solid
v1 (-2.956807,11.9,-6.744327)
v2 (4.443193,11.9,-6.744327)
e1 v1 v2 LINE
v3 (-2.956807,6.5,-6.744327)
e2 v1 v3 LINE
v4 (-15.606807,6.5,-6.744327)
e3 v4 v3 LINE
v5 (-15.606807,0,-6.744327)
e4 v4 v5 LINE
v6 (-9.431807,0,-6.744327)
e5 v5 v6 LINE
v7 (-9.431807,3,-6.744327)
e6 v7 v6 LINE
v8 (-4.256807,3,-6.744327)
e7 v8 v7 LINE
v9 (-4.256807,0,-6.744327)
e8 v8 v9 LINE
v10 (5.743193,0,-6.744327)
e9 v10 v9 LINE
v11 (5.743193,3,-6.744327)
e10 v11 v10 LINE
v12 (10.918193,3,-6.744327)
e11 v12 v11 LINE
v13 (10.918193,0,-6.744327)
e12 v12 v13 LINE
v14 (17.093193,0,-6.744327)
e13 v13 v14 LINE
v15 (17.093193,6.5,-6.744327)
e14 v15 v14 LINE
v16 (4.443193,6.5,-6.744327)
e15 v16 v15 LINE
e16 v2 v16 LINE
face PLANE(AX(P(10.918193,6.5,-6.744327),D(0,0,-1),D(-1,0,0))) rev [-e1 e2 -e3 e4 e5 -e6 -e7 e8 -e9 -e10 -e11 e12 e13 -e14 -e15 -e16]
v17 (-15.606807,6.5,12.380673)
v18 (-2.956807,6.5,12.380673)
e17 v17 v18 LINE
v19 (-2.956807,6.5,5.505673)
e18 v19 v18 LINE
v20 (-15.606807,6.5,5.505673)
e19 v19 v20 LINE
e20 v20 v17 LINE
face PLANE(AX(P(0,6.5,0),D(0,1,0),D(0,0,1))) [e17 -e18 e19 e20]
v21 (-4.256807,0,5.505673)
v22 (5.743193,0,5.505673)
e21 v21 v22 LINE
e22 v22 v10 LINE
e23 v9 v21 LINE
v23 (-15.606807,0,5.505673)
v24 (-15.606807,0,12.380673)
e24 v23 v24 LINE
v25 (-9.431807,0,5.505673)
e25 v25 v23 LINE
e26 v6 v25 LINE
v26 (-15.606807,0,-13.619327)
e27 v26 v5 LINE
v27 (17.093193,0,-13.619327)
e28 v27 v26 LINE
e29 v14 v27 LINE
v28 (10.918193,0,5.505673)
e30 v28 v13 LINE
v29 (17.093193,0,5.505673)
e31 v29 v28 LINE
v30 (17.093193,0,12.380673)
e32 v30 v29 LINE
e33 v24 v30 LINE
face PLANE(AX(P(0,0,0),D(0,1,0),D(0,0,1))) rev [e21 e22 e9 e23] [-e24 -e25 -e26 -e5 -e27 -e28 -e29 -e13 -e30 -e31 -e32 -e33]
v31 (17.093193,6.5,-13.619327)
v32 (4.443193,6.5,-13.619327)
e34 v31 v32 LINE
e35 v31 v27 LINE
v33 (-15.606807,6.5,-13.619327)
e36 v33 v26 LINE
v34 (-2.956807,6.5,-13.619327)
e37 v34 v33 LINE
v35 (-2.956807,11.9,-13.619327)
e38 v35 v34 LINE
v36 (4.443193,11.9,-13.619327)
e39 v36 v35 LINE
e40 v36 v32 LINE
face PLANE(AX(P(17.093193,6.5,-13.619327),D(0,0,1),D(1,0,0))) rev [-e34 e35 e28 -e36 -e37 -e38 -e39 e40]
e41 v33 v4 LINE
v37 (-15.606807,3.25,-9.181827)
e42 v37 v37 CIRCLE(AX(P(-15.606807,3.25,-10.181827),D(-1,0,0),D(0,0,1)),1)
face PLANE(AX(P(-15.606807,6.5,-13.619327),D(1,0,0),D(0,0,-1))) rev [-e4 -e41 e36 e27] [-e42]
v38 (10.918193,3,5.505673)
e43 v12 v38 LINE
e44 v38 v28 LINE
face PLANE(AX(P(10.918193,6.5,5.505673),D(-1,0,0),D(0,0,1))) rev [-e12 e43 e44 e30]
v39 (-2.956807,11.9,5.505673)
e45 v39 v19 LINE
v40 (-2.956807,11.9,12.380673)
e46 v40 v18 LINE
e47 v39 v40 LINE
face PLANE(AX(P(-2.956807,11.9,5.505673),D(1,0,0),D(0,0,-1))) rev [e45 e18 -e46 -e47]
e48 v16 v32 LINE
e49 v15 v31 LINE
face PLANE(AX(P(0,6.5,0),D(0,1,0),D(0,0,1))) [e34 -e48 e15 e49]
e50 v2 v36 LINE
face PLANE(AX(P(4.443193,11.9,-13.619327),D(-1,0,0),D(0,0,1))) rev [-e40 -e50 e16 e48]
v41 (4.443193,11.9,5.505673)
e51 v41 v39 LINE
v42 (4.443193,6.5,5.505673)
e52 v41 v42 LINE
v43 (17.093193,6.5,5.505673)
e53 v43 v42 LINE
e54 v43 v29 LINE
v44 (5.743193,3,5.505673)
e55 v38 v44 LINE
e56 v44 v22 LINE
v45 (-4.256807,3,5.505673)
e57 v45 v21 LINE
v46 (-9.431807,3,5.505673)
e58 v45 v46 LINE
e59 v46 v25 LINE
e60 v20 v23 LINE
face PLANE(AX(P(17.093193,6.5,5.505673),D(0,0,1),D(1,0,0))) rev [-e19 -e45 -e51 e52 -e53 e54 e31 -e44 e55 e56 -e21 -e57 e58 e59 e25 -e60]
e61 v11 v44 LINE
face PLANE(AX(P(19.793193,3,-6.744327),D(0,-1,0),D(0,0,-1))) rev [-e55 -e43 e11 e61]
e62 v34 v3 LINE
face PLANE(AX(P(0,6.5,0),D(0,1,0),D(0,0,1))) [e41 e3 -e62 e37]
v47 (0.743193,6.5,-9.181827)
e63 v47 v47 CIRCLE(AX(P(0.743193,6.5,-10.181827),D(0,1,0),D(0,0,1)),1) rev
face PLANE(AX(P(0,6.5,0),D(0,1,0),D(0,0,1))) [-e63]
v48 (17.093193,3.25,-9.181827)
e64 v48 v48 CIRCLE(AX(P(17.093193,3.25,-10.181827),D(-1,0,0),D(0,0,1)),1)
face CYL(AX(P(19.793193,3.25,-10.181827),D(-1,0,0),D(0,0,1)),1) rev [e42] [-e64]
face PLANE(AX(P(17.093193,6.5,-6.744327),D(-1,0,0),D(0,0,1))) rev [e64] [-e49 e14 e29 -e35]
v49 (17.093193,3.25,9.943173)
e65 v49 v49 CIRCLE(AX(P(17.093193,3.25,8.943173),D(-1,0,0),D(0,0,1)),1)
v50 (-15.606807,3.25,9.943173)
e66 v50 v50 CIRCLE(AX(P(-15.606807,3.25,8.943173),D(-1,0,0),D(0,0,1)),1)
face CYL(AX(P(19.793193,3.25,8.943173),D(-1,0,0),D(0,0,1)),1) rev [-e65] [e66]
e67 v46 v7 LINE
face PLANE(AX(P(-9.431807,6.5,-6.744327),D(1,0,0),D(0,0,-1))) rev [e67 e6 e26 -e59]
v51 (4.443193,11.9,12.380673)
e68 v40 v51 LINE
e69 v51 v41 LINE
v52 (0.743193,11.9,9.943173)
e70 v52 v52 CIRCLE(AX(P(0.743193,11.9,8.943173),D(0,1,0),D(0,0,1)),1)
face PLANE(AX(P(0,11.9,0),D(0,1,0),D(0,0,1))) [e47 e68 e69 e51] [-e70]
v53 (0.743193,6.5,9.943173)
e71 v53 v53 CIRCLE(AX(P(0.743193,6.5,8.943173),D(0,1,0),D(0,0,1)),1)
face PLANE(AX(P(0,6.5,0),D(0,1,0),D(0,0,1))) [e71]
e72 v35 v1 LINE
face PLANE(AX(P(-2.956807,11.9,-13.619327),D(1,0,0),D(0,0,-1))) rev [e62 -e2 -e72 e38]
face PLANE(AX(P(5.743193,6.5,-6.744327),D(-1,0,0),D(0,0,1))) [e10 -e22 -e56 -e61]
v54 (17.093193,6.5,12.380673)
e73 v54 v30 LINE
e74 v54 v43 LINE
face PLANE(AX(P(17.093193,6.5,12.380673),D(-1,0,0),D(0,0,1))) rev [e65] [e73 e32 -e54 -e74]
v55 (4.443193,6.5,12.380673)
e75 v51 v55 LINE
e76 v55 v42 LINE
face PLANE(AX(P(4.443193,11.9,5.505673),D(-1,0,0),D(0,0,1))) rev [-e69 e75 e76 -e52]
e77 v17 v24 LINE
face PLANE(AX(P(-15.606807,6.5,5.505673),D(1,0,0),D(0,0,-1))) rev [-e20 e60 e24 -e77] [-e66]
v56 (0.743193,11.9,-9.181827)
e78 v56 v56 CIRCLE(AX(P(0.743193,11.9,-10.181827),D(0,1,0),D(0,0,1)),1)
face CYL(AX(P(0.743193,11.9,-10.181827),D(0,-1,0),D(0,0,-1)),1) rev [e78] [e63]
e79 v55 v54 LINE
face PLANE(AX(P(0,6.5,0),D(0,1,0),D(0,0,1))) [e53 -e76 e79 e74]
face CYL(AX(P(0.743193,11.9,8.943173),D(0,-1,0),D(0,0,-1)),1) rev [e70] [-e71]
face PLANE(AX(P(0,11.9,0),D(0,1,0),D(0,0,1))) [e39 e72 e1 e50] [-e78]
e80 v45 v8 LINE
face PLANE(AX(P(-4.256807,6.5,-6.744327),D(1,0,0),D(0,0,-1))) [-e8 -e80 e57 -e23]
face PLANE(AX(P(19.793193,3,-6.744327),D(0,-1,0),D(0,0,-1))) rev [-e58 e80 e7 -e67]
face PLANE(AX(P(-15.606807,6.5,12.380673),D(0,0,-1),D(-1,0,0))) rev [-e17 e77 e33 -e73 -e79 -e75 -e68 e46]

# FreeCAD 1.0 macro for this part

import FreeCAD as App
import Part
import Sketcher
from FreeCAD import Vector

doc = App.newDocument("Part")
body = doc.addObject("PartDesign::Body", "Body")

sketch1 = doc.addObject("Sketcher::SketchObject", "Sketch")
body.addObject(sketch1)
sketch1.AttachmentSupport = (doc.XZ_Plane, [""])
sketch1.MapMode = "FlatFace"
sketch1.addGeometry(Part.LineSegment(Vector(-15.606807, -13.619327, 0), Vector(-15.606807, -6.744327, 0)), False)
sketch1.addGeometry(Part.LineSegment(Vector(-15.606807, -6.744327, 0), Vector(-9.431807, -6.744327, 0)), False)
sketch1.addGeometry(Part.LineSegment(Vector(-9.431807, -6.744327, 0), Vector(-9.431807, 5.505673, 0)), False)
sketch1.addGeometry(Part.LineSegment(Vector(-9.431807, 5.505673, 0), Vector(-15.606807, 5.505673, 0)), False)
sketch1.addGeometry(Part.LineSegment(Vector(-15.606807, 5.505673, 0), Vector(-15.606807, 12.380673, 0)), False)
sketch1.addGeometry(Part.LineSegment(Vector(-15.606807, 12.380673, 0), Vector(17.093193, 12.380673, 0)), False)
sketch1.addGeometry(Part.LineSegment(Vector(17.093193, 12.380673, 0), Vector(17.093193, 5.505673, 0)), False)
sketch1.addGeometry(Part.LineSegment(Vector(17.093193, 5.505673, 0), Vector(10.918193, 5.505673, 0)), False)
sketch1.addGeometry(Part.LineSegment(Vector(10.918193, 5.505673, 0), Vector(10.918193, -6.744327, 0)), False)
sketch1.addGeometry(Part.LineSegment(Vector(10.918193, -6.744327, 0), Vector(17.093193, -6.744327, 0)), False)
sketch1.addGeometry(Part.LineSegment(Vector(17.093193, -6.744327, 0), Vector(17.093193, -13.619327, 0)), False)
sketch1.addGeometry(Part.LineSegment(Vector(17.093193, -13.619327, 0), Vector(-15.606807, -13.619327, 0)), False)
sketch1.addGeometry(Part.LineSegment(Vector(5.743193, 5.505673, 0), Vector(-4.256807, 5.505673, 0)), False)
sketch1.addGeometry(Part.LineSegment(Vector(-4.256807, 5.505673, 0), Vector(-4.256807, -6.744327, 0)), False)
sketch1.addGeometry(Part.LineSegment(Vector(-4.256807, -6.744327, 0), Vector(5.743193, -6.744327, 0)), False)
sketch1.addGeometry(Part.LineSegment(Vector(5.743193, -6.744327, 0), Vector(5.743193, 5.505673, 0)), False)
sketch1.addConstraint(Sketcher.Constraint("Coincident", 0, 2, 1, 1))
sketch1.addConstraint(Sketcher.Constraint("Coincident", 1, 2, 2, 1))
sketch1.addConstraint(Sketcher.Constraint("Coincident", 2, 2, 3, 1))
sketch1.addConstraint(Sketcher.Constraint("Coincident", 3, 2, 4, 1))
sketch1.addConstraint(Sketcher.Constraint("Coincident", 4, 2, 5, 1))
sketch1.addConstraint(Sketcher.Constraint("Coincident", 5, 2, 6, 1))
sketch1.addConstraint(Sketcher.Constraint("Coincident", 6, 2, 7, 1))
sketch1.addConstraint(Sketcher.Constraint("Coincident", 7, 2, 8, 1))
sketch1.addConstraint(Sketcher.Constraint("Coincident", 8, 2, 9, 1))
sketch1.addConstraint(Sketcher.Constraint("Coincident", 9, 2, 10, 1))
sketch1.addConstraint(Sketcher.Constraint("Coincident", 10, 2, 11, 1))
sketch1.addConstraint(Sketcher.Constraint("Coincident", 11, 2, 0, 1))
sketch1.addConstraint(Sketcher.Constraint("Coincident", 12, 2, 13, 1))
sketch1.addConstraint(Sketcher.Constraint("Coincident", 13, 2, 14, 1))
sketch1.addConstraint(Sketcher.Constraint("Coincident", 14, 2, 15, 1))
sketch1.addConstraint(Sketcher.Constraint("Coincident", 15, 2, 12, 1))
sketch1.addConstraint(Sketcher.Constraint("Vertical", 0))
sketch1.addConstraint(Sketcher.Constraint("Horizontal", 1))
sketch1.addConstraint(Sketcher.Constraint("Vertical", 2))
sketch1.addConstraint(Sketcher.Constraint("Horizontal", 3))
sketch1.addConstraint(Sketcher.Constraint("Vertical", 4))
sketch1.addConstraint(Sketcher.Constraint("Horizontal", 5))
sketch1.addConstraint(Sketcher.Constraint("Vertical", 6))
sketch1.addConstraint(Sketcher.Constraint("Horizontal", 7))
sketch1.addConstraint(Sketcher.Constraint("Vertical", 8))
sketch1.addConstraint(Sketcher.Constraint("Horizontal", 9))
sketch1.addConstraint(Sketcher.Constraint("Vertical", 10))
sketch1.addConstraint(Sketcher.Constraint("Horizontal", 11))
sketch1.addConstraint(Sketcher.Constraint("Horizontal", 12))
sketch1.addConstraint(Sketcher.Constraint("Vertical", 13))
sketch1.addConstraint(Sketcher.Constraint("Horizontal", 14))
sketch1.addConstraint(Sketcher.Constraint("Vertical", 15))
sketch1.addConstraint(Sketcher.Constraint("Horizontal", 3, 2, 6, 2))
sketch1.addConstraint(Sketcher.Constraint("Horizontal", 1, 2, 8, 2))
sketch1.addConstraint(Sketcher.Constraint("Horizontal", 7, 2, 12, 2))
sketch1.addConstraint(Sketcher.Constraint("Horizontal", 9, 2, 13, 2))
sketch1.addConstraint(Sketcher.Constraint("Vertical", 0, 2, 3, 2))
sketch1.addConstraint(Sketcher.Constraint("Vertical", 6, 2, 9, 2))
sketch1.addConstraint(Sketcher.Constraint("Equal", 3, 7))
sketch1.addConstraint(Sketcher.Constraint("Equal", 0, 4))
sketch1.addConstraint(Sketcher.Constraint("DistanceX", 12, 2, 12, 1, 10.0))
sketch1.addConstraint(Sketcher.Constraint("DistanceX", 5, 1, 5, 2, 32.700001))
sketch1.addConstraint(Sketcher.Constraint("DistanceY", 10, 2, 5, 2, 26.0))
sketch1.addConstraint(Sketcher.Constraint("DistanceY", 2, 1, 2, 2, 12.25))
sketch1.addConstraint(Sketcher.Constraint("DistanceX", 1, 1, 1, 2, 6.175))
sketch1.addConstraint(Sketcher.Constraint("DistanceX", 3, 2, 12, 2, 11.35))
sketch1.addConstraint(Sketcher.Constraint("DistanceX", 0, 2, -1, 1, 15.606807))
sketch1.addConstraint(Sketcher.Constraint("DistanceY", 0, 2, -1, 1, 6.744327))
pad1 = doc.addObject("PartDesign::Pad", "Pad")
body.addObject(pad1)
pad1.Profile = sketch1
pad1.Length = 6.5
pad1.Reversed = True

sketch2 = doc.addObject("Sketcher::SketchObject", "Sketch001")
body.addObject(sketch2)
sketch2.AttachmentSupport = (doc.XZ_Plane, [""])
sketch2.MapMode = "FlatFace"
sketch2.AttachmentOffset = App.Placement(Vector(0, 0, -6.5), App.Rotation())
sketch2.addGeometry(Part.LineSegment(Vector(-2.956807, 5.505673, 0), Vector(-2.956807, 12.380673, 0)), False)
sketch2.addGeometry(Part.LineSegment(Vector(-2.956807, 12.380673, 0), Vector(4.443193, 12.380673, 0)), False)
sketch2.addGeometry(Part.LineSegment(Vector(4.443193, 12.380673, 0), Vector(4.443193, 5.505673, 0)), False)
sketch2.addGeometry(Part.LineSegment(Vector(4.443193, 5.505673, 0), Vector(-2.956807, 5.505673, 0)), False)
sketch2.addGeometry(Part.Circle(Vector(0.743193, 8.943173, 0), Vector(0, 0, 1), 1), False)
sketch2.addGeometry(Part.LineSegment(Vector(-2.956807, -13.619327, 0), Vector(-2.956807, -6.744327, 0)), False)
sketch2.addGeometry(Part.LineSegment(Vector(-2.956807, -6.744327, 0), Vector(4.443193, -6.744327, 0)), False)
sketch2.addGeometry(Part.LineSegment(Vector(4.443193, -6.744327, 0), Vector(4.443193, -13.619327, 0)), False)
sketch2.addGeometry(Part.LineSegment(Vector(4.443193, -13.619327, 0), Vector(-2.956807, -13.619327, 0)), False)
sketch2.addGeometry(Part.Circle(Vector(0.743193, -10.181827, 0), Vector(0, 0, 1), 1), False)
sketch2.addConstraint(Sketcher.Constraint("Coincident", 0, 2, 1, 1))
sketch2.addConstraint(Sketcher.Constraint("Coincident", 1, 2, 2, 1))
sketch2.addConstraint(Sketcher.Constraint("Coincident", 2, 2, 3, 1))
sketch2.addConstraint(Sketcher.Constraint("Coincident", 3, 2, 0, 1))
sketch2.addConstraint(Sketcher.Constraint("Coincident", 5, 2, 6, 1))
sketch2.addConstraint(Sketcher.Constraint("Coincident", 6, 2, 7, 1))
sketch2.addConstraint(Sketcher.Constraint("Coincident", 7, 2, 8, 1))
sketch2.addConstraint(Sketcher.Constraint("Coincident", 8, 2, 5, 1))
sketch2.addConstraint(Sketcher.Constraint("Vertical", 0))
sketch2.addConstraint(Sketcher.Constraint("Horizontal", 1))
sketch2.addConstraint(Sketcher.Constraint("Vertical", 2))
sketch2.addConstraint(Sketcher.Constraint("Horizontal", 3))
sketch2.addConstraint(Sketcher.Constraint("Vertical", 5))
sketch2.addConstraint(Sketcher.Constraint("Horizontal", 6))
sketch2.addConstraint(Sketcher.Constraint("Vertical", 7))
sketch2.addConstraint(Sketcher.Constraint("Horizontal", 8))
sketch2.addConstraint(Sketcher.Constraint("Equal", 4, 9))
sketch2.addConstraint(Sketcher.Constraint("Vertical", 4, 3, 9, 3))
sketch2.addConstraint(Sketcher.Constraint("Vertical", 3, 2, 5, 2))
sketch2.addConstraint(Sketcher.Constraint("Vertical", 2, 2, 6, 2))
sketch2.addConstraint(Sketcher.Constraint("Equal", 2, 5))
sketch2.addConstraint(Sketcher.Constraint("Diameter", 4, 2.0))
sketch2.addConstraint(Sketcher.Constraint("DistanceX", 1, 1, 1, 2, 7.4))
sketch2.addConstraint(Sketcher.Constraint("DistanceX", 0, 2, 4, 3, 3.7))
sketch2.addConstraint(Sketcher.Constraint("DistanceY", 0, 1, 0, 2, 6.875))
sketch2.addConstraint(Sketcher.Constraint("DistanceY", 5, 2, 3, 2, 12.25))
sketch2.addConstraint(Sketcher.Constraint("DistanceY", 9, 3, 4, 3, 19.125))
sketch2.addConstraint(Sketcher.Constraint("DistanceY", 4, 3, 0, 2, 3.4375))
sketch2.addConstraint(Sketcher.Constraint("DistanceX", -1, 1, 4, 3, 0.743193))
sketch2.addConstraint(Sketcher.Constraint("DistanceY", -1, 1, 4, 3, 8.943173))
pad2 = doc.addObject("PartDesign::Pad", "Pad001")
body.addObject(pad2)
pad2.Profile = sketch2
pad2.Length = 5.4
pad2.Reversed = True

sketch3 = doc.addObject("Sketcher::SketchObject", "Sketch002")
body.addObject(sketch3)
sketch3.AttachmentSupport = (doc.YZ_Plane, [""])
sketch3.MapMode = "FlatFace"
sketch3.AttachmentOffset = App.Placement(Vector(0, 0, -15.606807), App.Rotation())
sketch3.addGeometry(Part.Circle(Vector(3.25, -10.181827, 0), Vector(0, 0, 1), 1), False)
sketch3.addGeometry(Part.Circle(Vector(3.25, 8.943173, 0), Vector(0, 0, 1), 1), False)
sketch3.addGeometry(Part.LineSegment(Vector(6.5, -6.744327, 0), Vector(3, -6.744327, 0)), False)
sketch3.addGeometry(Part.LineSegment(Vector(3, -6.744327, 0), Vector(3, 5.505673, 0)), False)
sketch3.addGeometry(Part.LineSegment(Vector(3, 5.505673, 0), Vector(6.5, 5.505673, 0)), False)
sketch3.addGeometry(Part.LineSegment(Vector(6.5, 5.505673, 0), Vector(6.5, -6.744327, 0)), False)
sketch3.addConstraint(Sketcher.Constraint("Coincident", 2, 2, 3, 1))
sketch3.addConstraint(Sketcher.Constraint("Coincident", 3, 2, 4, 1))
sketch3.addConstraint(Sketcher.Constraint("Coincident", 4, 2, 5, 1))
sketch3.addConstraint(Sketcher.Constraint("Coincident", 5, 2, 2, 1))
sketch3.addConstraint(Sketcher.Constraint("Horizontal", 2))
sketch3.addConstraint(Sketcher.Constraint("Vertical", 3))
sketch3.addConstraint(Sketcher.Constraint("Horizontal", 4))
sketch3.addConstraint(Sketcher.Constraint("Vertical", 5))
sketch3.addConstraint(Sketcher.Constraint("Equal", 0, 1))
sketch3.addConstraint(Sketcher.Constraint("Vertical", 0, 3, 1, 3))
sketch3.addConstraint(Sketcher.Constraint("Diameter", 0, 2.0))
sketch3.addConstraint(Sketcher.Constraint("DistanceX", 2, 2, 2, 1, 3.5))
sketch3.addConstraint(Sketcher.Constraint("DistanceX", -1, 1, 2, 2, 3.0))
sketch3.addConstraint(Sketcher.Constraint("DistanceY", 3, 1, 3, 2, 12.25))
sketch3.addConstraint(Sketcher.Constraint("DistanceX", -1, 1, 0, 3, 3.25))
sketch3.addConstraint(Sketcher.Constraint("DistanceY", 0, 3, 1, 3, 19.125))
sketch3.addConstraint(Sketcher.Constraint("DistanceY", 0, 3, 2, 2, 3.4375))
sketch3.addConstraint(Sketcher.Constraint("DistanceY", 0, 3, -1, 1, 10.181827))
pocket1 = doc.addObject("PartDesign::Pocket", "Pocket")
body.addObject(pocket1)
pocket1.Profile = sketch3
pocket1.Length = 35.4
pocket1.Reversed = True

doc.recompute()
